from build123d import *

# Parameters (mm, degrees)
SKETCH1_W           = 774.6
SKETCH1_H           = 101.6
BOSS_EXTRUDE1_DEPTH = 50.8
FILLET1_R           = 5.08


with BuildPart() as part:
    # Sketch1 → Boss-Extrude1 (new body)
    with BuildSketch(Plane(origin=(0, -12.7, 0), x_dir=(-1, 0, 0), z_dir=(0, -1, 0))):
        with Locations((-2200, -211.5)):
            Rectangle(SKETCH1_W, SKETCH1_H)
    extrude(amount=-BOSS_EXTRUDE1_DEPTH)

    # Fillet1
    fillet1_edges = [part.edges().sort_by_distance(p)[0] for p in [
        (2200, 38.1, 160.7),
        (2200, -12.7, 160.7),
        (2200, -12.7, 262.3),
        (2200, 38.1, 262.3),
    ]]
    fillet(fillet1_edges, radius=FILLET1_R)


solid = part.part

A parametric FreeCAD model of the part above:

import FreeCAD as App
import Part
import Sketcher
from FreeCAD import Vector
Q = App.Units.Quantity


def edges_at(feature, points):
    """Names of the edges that pass closest to the given points."""
    edges = feature.Shape.Edges
    near = lambda p: min(range(len(edges)), key=lambda i: edges[i].distToShape(Part.Vertex(*p))[0])
    return sorted({f"Edge{near(p) + 1}" for p in points})

doc = App.newDocument("Part")
body = doc.addObject("PartDesign::Body", "Body")

# Sketch on XZ plane
sketch1 = body.newObject("Sketcher::SketchObject", "Sketch")
sketch1.AttachmentSupport = (doc.getObject("XZ_Plane"), [""])
sketch1.MapMode = "FlatFace"
sketch1.AttachmentOffset = App.Placement(Vector(0, 0, 0.5 * 25.4), App.Rotation())
sketch1.addGeometry([
    Part.LineSegment(Vector(2587, 161, 0), Vector(2587, 262, 0)),
    Part.LineSegment(Vector(2587, 262, 0), Vector(1813, 262, 0)),
    Part.LineSegment(Vector(1813, 262, 0), Vector(1813, 161, 0)),
    Part.LineSegment(Vector(1813, 161, 0), Vector(2587, 161, 0)),
], False)
sketch1.addConstraint([
    Sketcher.Constraint("Coincident", 0, 2, 1, 1),
    Sketcher.Constraint("Coincident", 1, 2, 2, 1),
    Sketcher.Constraint("Coincident", 2, 2, 3, 1),
    Sketcher.Constraint("Coincident", 3, 2, 0, 1),
    Sketcher.Constraint("Vertical", 0),
    Sketcher.Constraint("Horizontal", 1),
    Sketcher.Constraint("Vertical", 2),
    Sketcher.Constraint("Horizontal", 3),
    Sketcher.Constraint("DistanceY", 0, 1, 0, 2, Q("4 in")),
    Sketcher.Constraint("DistanceX", 1, 2, 1, 1, Q("774.6 mm")),
    Sketcher.Constraint("DistanceX", -1, 1, 0, 2, Q("2587.3 mm")),
    Sketcher.Constraint("DistanceY", -1, 1, 0, 2, Q("262.3 mm")),
])
pad1 = body.newObject("PartDesign::Pad", "Pad")
pad1.Profile = sketch1
pad1.Length = Q("2 in")
pad1.Reversed = True
doc.recompute()

fillet = body.newObject("PartDesign::Fillet", "Fillet")
fillet.Base = (pad1, edges_at(pad1, [
    (2200, 38.1, 160.7),
    (2200, -12.7, 160.7),
    (2200, -12.7, 262.3),
    (2200, 38.1, 262.3),
]))
fillet.Radius = Q("0.2 in")

doc.recompute()
